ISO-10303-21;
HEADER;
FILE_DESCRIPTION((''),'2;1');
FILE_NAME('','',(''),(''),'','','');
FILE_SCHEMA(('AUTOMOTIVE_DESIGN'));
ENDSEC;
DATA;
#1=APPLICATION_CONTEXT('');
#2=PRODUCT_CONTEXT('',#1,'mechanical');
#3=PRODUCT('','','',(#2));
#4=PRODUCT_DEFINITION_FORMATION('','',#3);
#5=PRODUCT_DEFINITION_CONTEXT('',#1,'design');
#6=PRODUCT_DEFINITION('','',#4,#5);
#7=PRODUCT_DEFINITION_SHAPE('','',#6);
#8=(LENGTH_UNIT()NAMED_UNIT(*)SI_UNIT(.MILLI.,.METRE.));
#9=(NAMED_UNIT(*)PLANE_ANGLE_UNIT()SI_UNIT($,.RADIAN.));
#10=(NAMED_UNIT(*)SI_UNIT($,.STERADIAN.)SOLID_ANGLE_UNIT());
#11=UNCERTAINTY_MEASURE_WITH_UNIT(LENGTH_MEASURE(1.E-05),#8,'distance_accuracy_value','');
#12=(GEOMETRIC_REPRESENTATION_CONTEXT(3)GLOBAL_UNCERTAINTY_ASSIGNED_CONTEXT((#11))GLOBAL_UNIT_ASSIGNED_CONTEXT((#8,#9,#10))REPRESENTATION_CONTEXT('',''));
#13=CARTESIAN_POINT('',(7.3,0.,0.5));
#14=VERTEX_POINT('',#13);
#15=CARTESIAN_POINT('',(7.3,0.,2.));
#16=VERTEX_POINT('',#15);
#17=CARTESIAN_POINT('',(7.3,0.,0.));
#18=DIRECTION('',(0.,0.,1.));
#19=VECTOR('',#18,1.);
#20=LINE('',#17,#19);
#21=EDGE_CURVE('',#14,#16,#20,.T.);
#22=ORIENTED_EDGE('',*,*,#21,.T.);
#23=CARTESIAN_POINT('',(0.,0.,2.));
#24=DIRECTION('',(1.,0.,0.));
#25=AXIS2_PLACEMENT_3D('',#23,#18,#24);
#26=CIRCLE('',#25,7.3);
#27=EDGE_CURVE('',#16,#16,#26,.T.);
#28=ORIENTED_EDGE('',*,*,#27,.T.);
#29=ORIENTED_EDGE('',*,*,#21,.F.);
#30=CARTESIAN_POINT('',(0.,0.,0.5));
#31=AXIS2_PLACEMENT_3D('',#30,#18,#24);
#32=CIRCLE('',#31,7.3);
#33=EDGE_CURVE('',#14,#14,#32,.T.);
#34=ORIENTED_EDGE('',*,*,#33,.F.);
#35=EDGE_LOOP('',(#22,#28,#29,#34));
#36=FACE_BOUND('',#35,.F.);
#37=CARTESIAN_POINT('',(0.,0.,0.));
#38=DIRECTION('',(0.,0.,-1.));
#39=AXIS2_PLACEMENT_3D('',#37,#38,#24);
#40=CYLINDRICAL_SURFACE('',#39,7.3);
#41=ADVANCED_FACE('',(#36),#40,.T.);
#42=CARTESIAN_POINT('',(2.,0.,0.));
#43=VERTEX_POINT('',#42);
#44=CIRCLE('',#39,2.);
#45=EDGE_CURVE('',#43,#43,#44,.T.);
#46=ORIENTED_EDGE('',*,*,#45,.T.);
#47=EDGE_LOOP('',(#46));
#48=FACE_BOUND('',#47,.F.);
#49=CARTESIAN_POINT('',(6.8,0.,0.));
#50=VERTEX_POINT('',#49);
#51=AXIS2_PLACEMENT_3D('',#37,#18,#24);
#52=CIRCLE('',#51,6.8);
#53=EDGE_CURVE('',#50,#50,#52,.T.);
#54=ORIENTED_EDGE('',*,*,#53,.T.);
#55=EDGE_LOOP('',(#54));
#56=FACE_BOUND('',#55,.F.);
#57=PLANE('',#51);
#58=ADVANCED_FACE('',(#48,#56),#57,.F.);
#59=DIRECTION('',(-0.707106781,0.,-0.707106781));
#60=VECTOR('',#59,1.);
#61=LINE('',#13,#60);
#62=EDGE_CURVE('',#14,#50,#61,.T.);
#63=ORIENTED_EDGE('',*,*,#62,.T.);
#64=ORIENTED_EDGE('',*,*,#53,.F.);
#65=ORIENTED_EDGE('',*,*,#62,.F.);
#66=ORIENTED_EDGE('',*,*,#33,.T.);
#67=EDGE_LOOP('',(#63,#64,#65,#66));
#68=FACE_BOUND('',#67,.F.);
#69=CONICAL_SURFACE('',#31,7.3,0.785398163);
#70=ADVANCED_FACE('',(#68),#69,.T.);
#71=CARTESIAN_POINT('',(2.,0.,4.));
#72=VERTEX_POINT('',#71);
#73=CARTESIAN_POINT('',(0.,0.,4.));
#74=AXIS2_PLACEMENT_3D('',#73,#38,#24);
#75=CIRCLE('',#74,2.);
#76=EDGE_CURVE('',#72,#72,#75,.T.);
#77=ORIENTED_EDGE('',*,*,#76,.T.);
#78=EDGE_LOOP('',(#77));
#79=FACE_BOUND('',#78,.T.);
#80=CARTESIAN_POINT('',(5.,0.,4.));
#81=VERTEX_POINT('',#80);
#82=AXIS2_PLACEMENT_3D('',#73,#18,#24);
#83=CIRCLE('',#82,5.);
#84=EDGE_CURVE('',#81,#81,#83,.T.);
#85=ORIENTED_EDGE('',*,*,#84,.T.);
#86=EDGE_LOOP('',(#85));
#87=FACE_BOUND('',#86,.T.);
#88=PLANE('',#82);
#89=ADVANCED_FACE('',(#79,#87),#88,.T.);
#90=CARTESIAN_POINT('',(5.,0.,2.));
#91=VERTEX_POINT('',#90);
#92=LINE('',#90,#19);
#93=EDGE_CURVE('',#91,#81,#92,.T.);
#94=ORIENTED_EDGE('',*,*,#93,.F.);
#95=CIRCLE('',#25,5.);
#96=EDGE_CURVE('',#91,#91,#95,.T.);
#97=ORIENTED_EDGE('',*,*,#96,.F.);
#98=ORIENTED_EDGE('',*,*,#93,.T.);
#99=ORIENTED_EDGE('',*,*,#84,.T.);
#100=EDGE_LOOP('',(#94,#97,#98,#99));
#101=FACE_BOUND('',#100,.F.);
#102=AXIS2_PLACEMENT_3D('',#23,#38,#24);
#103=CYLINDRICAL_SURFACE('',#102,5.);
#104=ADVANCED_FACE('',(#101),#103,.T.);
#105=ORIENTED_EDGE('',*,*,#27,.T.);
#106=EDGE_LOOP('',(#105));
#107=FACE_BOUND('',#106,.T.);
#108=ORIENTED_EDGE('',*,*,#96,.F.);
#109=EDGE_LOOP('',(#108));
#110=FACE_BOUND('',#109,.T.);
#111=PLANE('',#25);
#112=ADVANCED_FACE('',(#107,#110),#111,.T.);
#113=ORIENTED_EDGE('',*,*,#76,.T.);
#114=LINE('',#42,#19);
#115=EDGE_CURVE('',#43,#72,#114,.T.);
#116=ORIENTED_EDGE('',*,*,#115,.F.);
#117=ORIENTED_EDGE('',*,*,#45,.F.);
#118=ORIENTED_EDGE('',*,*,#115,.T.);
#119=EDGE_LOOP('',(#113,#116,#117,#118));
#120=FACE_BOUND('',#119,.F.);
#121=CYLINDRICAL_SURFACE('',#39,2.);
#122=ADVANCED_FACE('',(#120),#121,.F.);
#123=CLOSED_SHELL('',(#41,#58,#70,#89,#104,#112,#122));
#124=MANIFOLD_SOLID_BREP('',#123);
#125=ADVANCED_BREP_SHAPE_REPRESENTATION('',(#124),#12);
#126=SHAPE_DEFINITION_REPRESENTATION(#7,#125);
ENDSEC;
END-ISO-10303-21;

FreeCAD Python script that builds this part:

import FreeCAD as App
import Part
import Sketcher


def edges_at(feature, points):
    """Names of the edges that pass closest to the given points."""
    edges = feature.Shape.Edges
    near = lambda p: min(range(len(edges)), key=lambda i: edges[i].distToShape(Part.Vertex(*p))[0])
    return sorted({f"Edge{near(p) + 1}" for p in points})

doc = App.newDocument("Part")
body = doc.addObject("PartDesign::Body", "Body")

# Sketch on XY plane
sketch1 = body.newObject("Sketcher::SketchObject", "Sketch")
sketch1.AttachmentSupport = (doc.getObject("XY_Plane"), [""])
sketch1.MapMode = "FlatFace"
sketch1.addGeometry(Part.Circle(App.Vector(0, 0, 0), App.Vector(0, 0, 1), 7), False)
sketch1.addConstraint([
    Sketcher.Constraint("Coincident", 0, 3, -1, 1),
    Sketcher.Constraint("Diameter", 0, 14.6),
])
pad1 = body.newObject("PartDesign::Pad", "Pad")
pad1.Profile = sketch1
pad1.Length = 2

# Sketch on XY plane
sketch2 = body.newObject("Sketcher::SketchObject", "Sketch001")
sketch2.AttachmentSupport = (doc.getObject("XY_Plane"), [""])
sketch2.MapMode = "FlatFace"
sketch2.AttachmentOffset = App.Placement(App.Vector(0, 0, 2), App.Rotation())
sketch2.addGeometry(Part.Circle(App.Vector(0, 0, 0), App.Vector(0, 0, 1), 5), False)
sketch2.addConstraint([
    Sketcher.Constraint("Coincident", 0, 3, -1, 1),
    Sketcher.Constraint("Diameter", 0, 10.0),
])
pad2 = body.newObject("PartDesign::Pad", "Pad001")
pad2.Profile = sketch2
pad2.Length = 2
doc.recompute()

chamfer = body.newObject("PartDesign::Chamfer", "Chamfer")
chamfer.Base = (pad2, edges_at(pad2, [(-7.3, 0, 0)]))
chamfer.Size = 0.5

# Sketch on XY plane
sketch3 = body.newObject("Sketcher::SketchObject", "Sketch002")
sketch3.AttachmentSupport = (doc.getObject("XY_Plane"), [""])
sketch3.MapMode = "FlatFace"
sketch3.addGeometry(Part.Circle(App.Vector(0, 0, 0), App.Vector(0, 0, 1), 2), False)
sketch3.addConstraint([
    Sketcher.Constraint("Coincident", 0, 3, -1, 1),
    Sketcher.Constraint("Diameter", 0, 4.0),
])
pocket1 = body.newObject("PartDesign::Pocket", "Pocket")
pocket1.Profile = sketch3
pocket1.Type = "ThroughAll"
pocket1.Reversed = True

doc.recompute()
